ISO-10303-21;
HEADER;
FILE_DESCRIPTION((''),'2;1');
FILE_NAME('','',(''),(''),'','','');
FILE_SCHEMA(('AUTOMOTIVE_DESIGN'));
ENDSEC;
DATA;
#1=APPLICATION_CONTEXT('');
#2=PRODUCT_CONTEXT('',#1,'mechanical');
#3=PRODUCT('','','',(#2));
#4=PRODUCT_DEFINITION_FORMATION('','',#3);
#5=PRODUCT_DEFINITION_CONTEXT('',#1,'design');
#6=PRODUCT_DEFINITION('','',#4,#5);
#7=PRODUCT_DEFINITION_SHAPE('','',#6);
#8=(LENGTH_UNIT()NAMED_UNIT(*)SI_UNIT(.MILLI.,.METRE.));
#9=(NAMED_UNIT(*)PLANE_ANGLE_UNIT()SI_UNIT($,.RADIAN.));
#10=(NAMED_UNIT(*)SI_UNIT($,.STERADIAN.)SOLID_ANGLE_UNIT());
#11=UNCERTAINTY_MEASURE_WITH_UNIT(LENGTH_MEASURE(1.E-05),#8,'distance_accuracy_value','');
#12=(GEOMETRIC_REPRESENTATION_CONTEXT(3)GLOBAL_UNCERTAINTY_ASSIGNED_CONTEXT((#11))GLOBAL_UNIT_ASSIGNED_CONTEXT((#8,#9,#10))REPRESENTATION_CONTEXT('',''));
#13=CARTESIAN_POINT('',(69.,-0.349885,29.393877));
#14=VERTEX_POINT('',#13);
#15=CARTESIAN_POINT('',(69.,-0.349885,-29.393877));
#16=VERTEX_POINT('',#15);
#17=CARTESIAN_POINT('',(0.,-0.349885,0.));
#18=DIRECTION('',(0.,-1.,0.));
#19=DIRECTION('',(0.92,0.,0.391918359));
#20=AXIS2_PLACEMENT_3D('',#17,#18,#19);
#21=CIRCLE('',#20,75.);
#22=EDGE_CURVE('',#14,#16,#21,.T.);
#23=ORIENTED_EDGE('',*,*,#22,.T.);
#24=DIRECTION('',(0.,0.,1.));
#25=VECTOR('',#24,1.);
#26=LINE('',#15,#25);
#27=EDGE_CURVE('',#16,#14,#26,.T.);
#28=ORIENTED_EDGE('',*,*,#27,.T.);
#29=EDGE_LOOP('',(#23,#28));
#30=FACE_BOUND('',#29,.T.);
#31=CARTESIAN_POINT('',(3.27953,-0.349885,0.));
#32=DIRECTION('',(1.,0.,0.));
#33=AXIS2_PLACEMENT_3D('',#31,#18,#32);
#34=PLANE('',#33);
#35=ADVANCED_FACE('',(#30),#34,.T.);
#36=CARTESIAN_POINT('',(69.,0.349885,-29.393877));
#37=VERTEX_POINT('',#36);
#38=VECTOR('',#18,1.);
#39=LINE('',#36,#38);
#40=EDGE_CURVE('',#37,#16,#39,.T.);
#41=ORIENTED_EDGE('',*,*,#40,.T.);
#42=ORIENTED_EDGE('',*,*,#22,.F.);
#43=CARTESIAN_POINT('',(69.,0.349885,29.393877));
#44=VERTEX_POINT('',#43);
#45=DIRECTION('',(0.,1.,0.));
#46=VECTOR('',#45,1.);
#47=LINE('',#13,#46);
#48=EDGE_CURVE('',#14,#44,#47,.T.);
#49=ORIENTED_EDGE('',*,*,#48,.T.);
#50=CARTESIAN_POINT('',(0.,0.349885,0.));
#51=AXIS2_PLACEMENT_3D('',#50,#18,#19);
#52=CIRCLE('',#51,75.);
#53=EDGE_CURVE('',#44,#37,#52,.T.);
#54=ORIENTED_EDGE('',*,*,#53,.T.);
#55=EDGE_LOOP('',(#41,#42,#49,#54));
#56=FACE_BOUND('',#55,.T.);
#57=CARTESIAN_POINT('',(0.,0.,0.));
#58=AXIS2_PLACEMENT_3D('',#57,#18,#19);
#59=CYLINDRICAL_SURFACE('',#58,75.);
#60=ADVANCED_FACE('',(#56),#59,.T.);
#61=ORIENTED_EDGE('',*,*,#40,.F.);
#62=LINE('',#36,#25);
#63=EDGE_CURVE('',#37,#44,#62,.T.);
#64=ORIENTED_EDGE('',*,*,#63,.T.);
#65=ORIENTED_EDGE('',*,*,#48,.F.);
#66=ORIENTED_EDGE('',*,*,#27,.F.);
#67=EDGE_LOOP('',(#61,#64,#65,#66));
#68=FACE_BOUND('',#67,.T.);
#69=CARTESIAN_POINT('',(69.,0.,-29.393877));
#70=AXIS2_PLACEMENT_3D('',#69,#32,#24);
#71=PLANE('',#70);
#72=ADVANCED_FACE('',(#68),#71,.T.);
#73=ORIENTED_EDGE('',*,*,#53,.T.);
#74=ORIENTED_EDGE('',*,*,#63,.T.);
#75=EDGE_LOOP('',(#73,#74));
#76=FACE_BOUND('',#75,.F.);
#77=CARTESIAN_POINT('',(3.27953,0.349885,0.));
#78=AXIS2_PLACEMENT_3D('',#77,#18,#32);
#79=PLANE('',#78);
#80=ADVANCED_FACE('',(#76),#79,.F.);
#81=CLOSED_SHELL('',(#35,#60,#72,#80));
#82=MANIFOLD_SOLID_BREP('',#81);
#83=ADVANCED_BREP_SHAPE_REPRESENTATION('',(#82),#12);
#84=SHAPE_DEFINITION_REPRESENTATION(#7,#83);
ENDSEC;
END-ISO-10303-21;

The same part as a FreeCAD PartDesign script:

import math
import FreeCAD as App
import Part
import Sketcher

doc = App.newDocument("Part")
params = doc.addObject("Spreadsheet::Sheet", "Params")
for row, (alias, value) in enumerate([
    ("sketch1_radius", "75 mm"),
    ("pad1_length", "0.69977 mm"),
], start=1):
    params.set(f"A{row}", alias)
    params.set(f"B{row}", "=" + value)
    params.setAlias(f"B{row}", alias)

body = doc.addObject("PartDesign::Body", "Body")

sketch1 = body.newObject("Sketcher::SketchObject", "Sketch")
sketch1.AttachmentSupport = (doc.getObject("XZ_Plane"), [""])
sketch1.MapMode = "FlatFace"
sketch1.addGeometry(Part.ArcOfCircle(Part.Circle(App.Vector(0, 0, 0), App.Vector(0, 0, 1), 75), math.radians(23), math.radians(337)), False)
sketch1.addGeometry(Part.LineSegment(App.Vector(69, -29, 0), App.Vector(69, 29, 0)), False)
sketch1.addConstraint(Sketcher.Constraint("Coincident", 0, 1, 1, 2))
sketch1.addConstraint(Sketcher.Constraint("Coincident", 1, 1, 0, 2))
sketch1.addConstraint(Sketcher.Constraint("Vertical", 1))
sketch1.addConstraint(Sketcher.Constraint("Coincident", 0, 3, -1, 1))
sketch1.addConstraint(Sketcher.Constraint("Radius", 0, 75.0))
sketch1.addConstraint(Sketcher.Constraint("DistanceX", -1, 1, 0, 1, 69.0))
sketch1.setExpression("Constraints[4]", "Params.sketch1_radius")
pad1 = body.newObject("PartDesign::Pad", "Pad")
pad1.Profile = sketch1
pad1.setExpression("Length", "Params.pad1_length")
pad1.Midplane = True

doc.recompute()
